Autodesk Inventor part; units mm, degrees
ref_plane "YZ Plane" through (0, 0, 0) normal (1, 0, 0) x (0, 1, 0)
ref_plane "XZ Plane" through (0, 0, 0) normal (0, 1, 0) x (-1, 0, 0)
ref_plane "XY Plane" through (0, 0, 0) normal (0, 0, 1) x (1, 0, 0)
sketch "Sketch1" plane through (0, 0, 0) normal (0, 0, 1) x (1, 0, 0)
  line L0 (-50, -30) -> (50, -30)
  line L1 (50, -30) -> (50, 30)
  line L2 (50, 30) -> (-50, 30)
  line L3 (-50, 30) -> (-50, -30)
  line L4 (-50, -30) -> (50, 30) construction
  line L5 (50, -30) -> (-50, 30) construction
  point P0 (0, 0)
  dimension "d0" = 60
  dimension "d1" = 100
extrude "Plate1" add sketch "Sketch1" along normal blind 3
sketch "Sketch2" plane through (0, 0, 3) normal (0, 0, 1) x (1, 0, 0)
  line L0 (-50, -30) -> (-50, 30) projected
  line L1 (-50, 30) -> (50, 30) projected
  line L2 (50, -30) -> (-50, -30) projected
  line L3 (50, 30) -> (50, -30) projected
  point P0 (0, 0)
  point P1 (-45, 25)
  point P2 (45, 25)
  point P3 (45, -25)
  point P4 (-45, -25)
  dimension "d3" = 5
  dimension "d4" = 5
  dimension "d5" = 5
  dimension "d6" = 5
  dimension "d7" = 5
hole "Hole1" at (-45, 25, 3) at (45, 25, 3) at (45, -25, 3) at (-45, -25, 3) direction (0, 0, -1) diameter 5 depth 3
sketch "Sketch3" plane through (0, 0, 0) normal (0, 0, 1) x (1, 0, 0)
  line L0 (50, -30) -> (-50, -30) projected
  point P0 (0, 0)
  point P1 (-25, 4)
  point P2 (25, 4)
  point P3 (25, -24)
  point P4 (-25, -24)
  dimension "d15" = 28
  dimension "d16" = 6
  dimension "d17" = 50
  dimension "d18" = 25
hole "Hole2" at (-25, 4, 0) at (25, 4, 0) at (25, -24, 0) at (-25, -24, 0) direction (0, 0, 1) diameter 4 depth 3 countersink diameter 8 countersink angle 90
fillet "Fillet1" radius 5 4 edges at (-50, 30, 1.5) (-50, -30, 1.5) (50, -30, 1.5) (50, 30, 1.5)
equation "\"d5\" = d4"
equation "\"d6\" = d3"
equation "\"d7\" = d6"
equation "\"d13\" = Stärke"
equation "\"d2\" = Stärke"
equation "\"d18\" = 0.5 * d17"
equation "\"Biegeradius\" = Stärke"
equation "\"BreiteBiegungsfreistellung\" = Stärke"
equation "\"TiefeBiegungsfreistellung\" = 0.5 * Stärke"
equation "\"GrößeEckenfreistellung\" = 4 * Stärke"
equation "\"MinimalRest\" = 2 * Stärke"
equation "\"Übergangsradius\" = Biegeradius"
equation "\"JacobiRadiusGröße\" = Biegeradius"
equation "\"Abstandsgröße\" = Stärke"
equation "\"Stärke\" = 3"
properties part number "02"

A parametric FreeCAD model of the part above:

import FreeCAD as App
import Part
import Sketcher
Q = App.Units.Quantity


def edges_at(feature, points):
    """Names of the edges that pass closest to the given points."""
    edges = feature.Shape.Edges
    near = lambda p: min(range(len(edges)), key=lambda i: edges[i].distToShape(Part.Vertex(*p))[0])
    return sorted({f"Edge{near(p) + 1}" for p in points})


def add_polygon(sketch, points):
    """Adds a closed chain of lines whose ends are joined by coincident constraints."""
    first, n = sketch.GeometryCount, len(points)
    for a, b in zip(points, points[1:] + points[:1]):
        sketch.addGeometry(Part.LineSegment(App.Vector(*a, 0), App.Vector(*b, 0)), False)
    for i in range(n):
        sketch.addConstraint(Sketcher.Constraint("Coincident", first + i, 2, first + (i + 1) % n, 1))

doc = App.newDocument("Part")
body = doc.addObject("PartDesign::Body", "Body")

# Sketch on XY plane
sketch1 = body.newObject("Sketcher::SketchObject", "Sketch")
sketch1.AttachmentSupport = (doc.getObject("XY_Plane"), [""])
sketch1.MapMode = "FlatFace"
add_polygon(sketch1, [(-50, 30), (-50, -30), (50, -30), (50, 30)])  # lines 0-3
sketch1.addConstraint(Sketcher.Constraint("Vertical", 0))
sketch1.addConstraint(Sketcher.Constraint("Horizontal", 1))
sketch1.addConstraint(Sketcher.Constraint("Vertical", 2))
sketch1.addConstraint(Sketcher.Constraint("Horizontal", 3))
sketch1.addConstraint(Sketcher.Constraint("Symmetric", 0, 2, 2, 2, -1, 1))
sketch1.addConstraint(Sketcher.Constraint("DistanceX", 1, 1, 1, 2, Q("100 mm")))
sketch1.addConstraint(Sketcher.Constraint("DistanceY", 0, 2, 0, 1, Q("60 mm")))
pad1 = body.newObject("PartDesign::Pad", "Pad")
pad1.Profile = sketch1
pad1.Length = 3

# Sketch on XY plane
sketch2 = body.newObject("Sketcher::SketchObject", "Sketch001")
sketch2.AttachmentSupport = (doc.getObject("XY_Plane"), [""])
sketch2.MapMode = "FlatFace"
sketch2.AttachmentOffset = App.Placement(App.Vector(0, 0, 3), App.Rotation())
sketch2.addGeometry(Part.Circle(App.Vector(-45, 25, 0), App.Vector(0, 0, 1), 2.5), False)
sketch2.addGeometry(Part.Circle(App.Vector(45, 25, 0), App.Vector(0, 0, 1), 2.5), False)
sketch2.addGeometry(Part.Circle(App.Vector(45, -25, 0), App.Vector(0, 0, 1), 2.5), False)
sketch2.addGeometry(Part.Circle(App.Vector(-45, -25, 0), App.Vector(0, 0, 1), 2.5), False)
sketch2.addConstraint(Sketcher.Constraint("Equal", 0, 1))
sketch2.addConstraint(Sketcher.Constraint("Equal", 1, 2))
sketch2.addConstraint(Sketcher.Constraint("Equal", 2, 3))
sketch2.addConstraint(Sketcher.Constraint("Symmetric", 0, 3, 2, 3, -1, 1))
sketch2.addConstraint(Sketcher.Constraint("Symmetric", 1, 3, 3, 3, -1, 1))
sketch2.addConstraint(Sketcher.Constraint("Symmetric", 0, 3, 1, 3, -2))
sketch2.addConstraint(Sketcher.Constraint("Diameter", 0, Q("5 mm")))
sketch2.addConstraint(Sketcher.Constraint("DistanceX", 0, 3, -1, 1, Q("45 mm")))
sketch2.addConstraint(Sketcher.Constraint("DistanceY", -1, 1, 0, 3, Q("25 mm")))
doc.recompute()
hole = body.newObject("PartDesign::Hole", "Hole")
hole.Profile = sketch2
hole.ThreadType = "None"
hole.Diameter = 5
hole.DepthType = "Dimension"
hole.Depth = 3
hole.DrillPoint = "Flat"

# Sketch on XY plane
sketch3 = body.newObject("Sketcher::SketchObject", "Sketch002")
sketch3.AttachmentSupport = (doc.getObject("XY_Plane"), [""])
sketch3.MapMode = "FlatFace"
sketch3.addGeometry(Part.Circle(App.Vector(-25, 4, 0), App.Vector(0, 0, 1), 2), False)
sketch3.addGeometry(Part.Circle(App.Vector(25, 4, 0), App.Vector(0, 0, 1), 2), False)
sketch3.addGeometry(Part.Circle(App.Vector(25, -24, 0), App.Vector(0, 0, 1), 2), False)
sketch3.addGeometry(Part.Circle(App.Vector(-25, -24, 0), App.Vector(0, 0, 1), 2), False)
sketch3.addConstraint(Sketcher.Constraint("Equal", 0, 1))
sketch3.addConstraint(Sketcher.Constraint("Equal", 1, 2))
sketch3.addConstraint(Sketcher.Constraint("Equal", 2, 3))
sketch3.addConstraint(Sketcher.Constraint("Symmetric", 0, 3, 1, 3, -2))
sketch3.addConstraint(Sketcher.Constraint("Symmetric", 2, 3, 3, 3, -2))
sketch3.addConstraint(Sketcher.Constraint("Vertical", 1, 3, 2, 3))
sketch3.addConstraint(Sketcher.Constraint("Diameter", 0, Q("4 mm")))
sketch3.addConstraint(Sketcher.Constraint("DistanceX", 0, 3, -1, 1, Q("25 mm")))
sketch3.addConstraint(Sketcher.Constraint("DistanceY", -1, 1, 0, 3, Q("4 mm")))
sketch3.addConstraint(Sketcher.Constraint("DistanceY", 2, 3, -1, 1, Q("24 mm")))
doc.recompute()
hole2 = body.newObject("PartDesign::Hole", "Hole001")
hole2.Profile = sketch3
hole2.ThreadType = "None"
hole2.Diameter = 4
hole2.DepthType = "Dimension"
hole2.Depth = 3
hole2.DrillPoint = "Flat"
hole2.HoleCutType = "Countersink"
hole2.HoleCutDiameter = 8
hole2.HoleCutCountersinkAngle = 90
hole2.Reversed = True
doc.recompute()

fillet = body.newObject("PartDesign::Fillet", "Fillet")
fillet.Base = (hole2, edges_at(hole2, [
    (-50, 30, 1.5),
    (-50, -30, 1.5),
    (50, -30, 1.5),
    (50, 30, 1.5),
]))
fillet.Radius = 5

doc.recompute()
